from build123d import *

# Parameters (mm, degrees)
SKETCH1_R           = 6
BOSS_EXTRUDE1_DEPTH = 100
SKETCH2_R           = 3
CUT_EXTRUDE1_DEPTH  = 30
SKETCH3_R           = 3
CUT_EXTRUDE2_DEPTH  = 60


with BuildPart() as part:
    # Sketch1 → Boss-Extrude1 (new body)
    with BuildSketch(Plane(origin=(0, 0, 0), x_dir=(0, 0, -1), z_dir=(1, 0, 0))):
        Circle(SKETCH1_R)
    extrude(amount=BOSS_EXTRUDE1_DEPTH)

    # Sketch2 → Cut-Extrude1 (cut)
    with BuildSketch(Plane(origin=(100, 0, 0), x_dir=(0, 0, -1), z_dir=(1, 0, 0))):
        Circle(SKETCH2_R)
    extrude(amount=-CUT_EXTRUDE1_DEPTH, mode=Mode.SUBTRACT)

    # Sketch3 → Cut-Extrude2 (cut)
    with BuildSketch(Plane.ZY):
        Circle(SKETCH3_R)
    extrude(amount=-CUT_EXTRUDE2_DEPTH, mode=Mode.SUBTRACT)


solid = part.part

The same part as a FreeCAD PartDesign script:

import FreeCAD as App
import Part
import Sketcher

V = App.Vector

doc = App.newDocument("Part")
body = doc.addObject("PartDesign::Body", "Body")

sketch1 = doc.addObject("Sketcher::SketchObject", "Sketch")
body.addObject(sketch1)
sketch1.AttachmentSupport = (doc.YZ_Plane, [""])
sketch1.MapMode = "FlatFace"
sketch1.addGeometry(Part.Circle(V(0, 0, 0), V(0, 0, 1), 6), False)
sketch1.addConstraint(Sketcher.Constraint("Coincident", 0, 3, -1, 1))
sketch1.addConstraint(Sketcher.Constraint("Diameter", 0, 12.0))
pad1 = doc.addObject("PartDesign::Pad", "Pad")
body.addObject(pad1)
pad1.Profile = sketch1
pad1.Length = 100

sketch2 = doc.addObject("Sketcher::SketchObject", "Sketch001")
body.addObject(sketch2)
sketch2.AttachmentSupport = (doc.YZ_Plane, [""])
sketch2.MapMode = "FlatFace"
sketch2.AttachmentOffset = App.Placement(V(0, 0, 100), App.Rotation())
sketch2.addGeometry(Part.Circle(V(0, 0, 0), V(0, 0, 1), 3), False)
sketch2.addConstraint(Sketcher.Constraint("Coincident", 0, 3, -1, 1))
sketch2.addConstraint(Sketcher.Constraint("Diameter", 0, 6.0))
pocket1 = doc.addObject("PartDesign::Pocket", "Pocket")
body.addObject(pocket1)
pocket1.Profile = sketch2
pocket1.Length = 30

sketch3 = doc.addObject("Sketcher::SketchObject", "Sketch002")
body.addObject(sketch3)
sketch3.AttachmentSupport = (doc.YZ_Plane, [""])
sketch3.MapMode = "FlatFace"
sketch3.addGeometry(Part.Circle(V(0, 0, 0), V(0, 0, 1), 3), False)
sketch3.addConstraint(Sketcher.Constraint("Coincident", 0, 3, -1, 1))
sketch3.addConstraint(Sketcher.Constraint("Diameter", 0, 6.0))
pocket2 = doc.addObject("PartDesign::Pocket", "Pocket001")
body.addObject(pocket2)
pocket2.Profile = sketch3
pocket2.Length = 60
pocket2.Reversed = True

doc.recompute()
